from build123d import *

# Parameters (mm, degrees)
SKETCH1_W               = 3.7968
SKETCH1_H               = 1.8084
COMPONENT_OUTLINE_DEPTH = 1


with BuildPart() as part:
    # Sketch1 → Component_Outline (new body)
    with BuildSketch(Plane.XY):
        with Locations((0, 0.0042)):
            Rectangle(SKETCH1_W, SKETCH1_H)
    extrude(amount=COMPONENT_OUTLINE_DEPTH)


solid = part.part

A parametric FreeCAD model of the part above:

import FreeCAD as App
import Part
import Sketcher
from FreeCAD import Vector
Q = App.Units.Quantity


def add_polygon(sketch, points):
    """Adds a closed chain of lines whose ends are joined by coincident constraints."""
    first, n = sketch.GeometryCount, len(points)
    for a, b in zip(points, points[1:] + points[:1]):
        sketch.addGeometry(Part.LineSegment(App.Vector(*a, 0), App.Vector(*b, 0)), False)
    for i in range(n):
        sketch.addConstraint(Sketcher.Constraint("Coincident", first + i, 2, first + (i + 1) % n, 1))

doc = App.newDocument("Part")
params = doc.addObject("Spreadsheet::Sheet", "Params")
for row, (alias, value) in enumerate([
    ("pad1_length", "1 mm"),
], start=1):
    params.set(f"A{row}", alias)
    params.set(f"B{row}", "=" + value)
    params.setAlias(f"B{row}", alias)

body = doc.addObject("PartDesign::Body", "Body")

# Sketch on XY plane
sketch1 = body.newObject("Sketcher::SketchObject", "Sketch")
sketch1.AttachmentSupport = (doc.getObject("XY_Plane"), [""])
sketch1.MapMode = "FlatFace"
add_polygon(sketch1, [(-1.8984, 0.9084), (-1.8984, -0.9), (1.8984, -0.9), (1.8984, 0.9084)])  # lines 0-3
sketch1.addConstraint([
    Sketcher.Constraint("Vertical", 0),
    Sketcher.Constraint("Horizontal", 1),
    Sketcher.Constraint("Vertical", 2),
    Sketcher.Constraint("Horizontal", 3),
    Sketcher.Constraint("DistanceY", 0, 2, -1, 1, Q("0.9 mm")),
    Sketcher.Constraint("DistanceX", 1, 1, 1, 2, Q("3.7968 mm")),
    Sketcher.Constraint("DistanceY", 0, 2, 0, 1, Q("1.8084 mm")),
    Sketcher.Constraint("DistanceX", 0, 2, -1, 1, Q("1.8984 mm")),
])
pad1 = body.newObject("PartDesign::Pad", "Pad")
pad1.Profile = sketch1
pad1.setExpression("Length", "Params.pad1_length")

doc.recompute()
